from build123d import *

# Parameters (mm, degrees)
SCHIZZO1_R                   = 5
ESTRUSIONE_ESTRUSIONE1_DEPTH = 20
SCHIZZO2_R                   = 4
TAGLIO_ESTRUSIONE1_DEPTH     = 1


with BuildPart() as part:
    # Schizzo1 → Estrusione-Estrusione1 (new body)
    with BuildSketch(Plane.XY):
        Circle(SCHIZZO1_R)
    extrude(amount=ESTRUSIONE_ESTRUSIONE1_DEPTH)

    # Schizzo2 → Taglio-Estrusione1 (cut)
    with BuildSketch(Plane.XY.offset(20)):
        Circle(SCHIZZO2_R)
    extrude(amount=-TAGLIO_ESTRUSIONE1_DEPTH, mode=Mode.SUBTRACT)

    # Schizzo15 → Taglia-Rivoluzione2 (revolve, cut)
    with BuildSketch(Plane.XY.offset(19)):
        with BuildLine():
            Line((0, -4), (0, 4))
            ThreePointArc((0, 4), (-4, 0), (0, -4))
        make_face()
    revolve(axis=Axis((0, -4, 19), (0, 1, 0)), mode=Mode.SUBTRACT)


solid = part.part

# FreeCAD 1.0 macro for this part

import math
import FreeCAD as App
import Part
import Sketcher
from FreeCAD import Vector

doc = App.newDocument("Part")
body = doc.addObject("PartDesign::Body", "Body")

sketch1 = body.newObject("Sketcher::SketchObject", "Sketch")
sketch1.AttachmentSupport = (doc.getObject("XY_Plane"), [""])
sketch1.MapMode = "FlatFace"
sketch1.addGeometry(Part.Circle(Vector(0, 0, 0), Vector(0, 0, 1), 5), False)
sketch1.addConstraint(Sketcher.Constraint("Coincident", 0, 3, -1, 1))
sketch1.addConstraint(Sketcher.Constraint("Diameter", 0, 10.0))
pad1 = body.newObject("PartDesign::Pad", "Pad")
pad1.Profile = sketch1
pad1.Length = 20

sketch2 = body.newObject("Sketcher::SketchObject", "Sketch001")
sketch2.AttachmentSupport = (doc.getObject("XY_Plane"), [""])
sketch2.MapMode = "FlatFace"
sketch2.AttachmentOffset = App.Placement(Vector(0, 0, 20), App.Rotation())
sketch2.addGeometry(Part.Circle(Vector(0, 0, 0), Vector(0, 0, 1), 4), False)
sketch2.addConstraint(Sketcher.Constraint("Coincident", 0, 3, -1, 1))
sketch2.addConstraint(Sketcher.Constraint("Diameter", 0, 8.0))
pocket1 = body.newObject("PartDesign::Pocket", "Pocket")
pocket1.Profile = sketch2
pocket1.Length = 1

sketch3 = body.newObject("Sketcher::SketchObject", "Sketch002")
sketch3.AttachmentSupport = (doc.getObject("XY_Plane"), [""])
sketch3.MapMode = "FlatFace"
sketch3.AttachmentOffset = App.Placement(Vector(0, 0, 19), App.Rotation())
sketch3.addGeometry(Part.LineSegment(Vector(0, -4, 0), Vector(0, 4, 0)), False)
sketch3.addGeometry(Part.ArcOfCircle(Part.Circle(Vector(0, 0, 0), Vector(0, 0, 1), 4), math.radians(90), math.radians(270)), False)
sketch3.addConstraint(Sketcher.Constraint("Coincident", 0, 1, 1, 2))
sketch3.addConstraint(Sketcher.Constraint("Coincident", 1, 1, 0, 2))
sketch3.addConstraint(Sketcher.Constraint("Vertical", 0))
sketch3.addConstraint(Sketcher.Constraint("Coincident", 1, 3, -1, 1))
sketch3.addConstraint(Sketcher.Constraint("PointOnObject", 0, 1, -2))
sketch3.addConstraint(Sketcher.Constraint("Radius", 1, 4.0))
groove = body.newObject("PartDesign::Groove", "Groove")
groove.Profile = sketch3
groove.ReferenceAxis = (sketch3, ["V_Axis"])
groove.Angle = 360

doc.recompute()
